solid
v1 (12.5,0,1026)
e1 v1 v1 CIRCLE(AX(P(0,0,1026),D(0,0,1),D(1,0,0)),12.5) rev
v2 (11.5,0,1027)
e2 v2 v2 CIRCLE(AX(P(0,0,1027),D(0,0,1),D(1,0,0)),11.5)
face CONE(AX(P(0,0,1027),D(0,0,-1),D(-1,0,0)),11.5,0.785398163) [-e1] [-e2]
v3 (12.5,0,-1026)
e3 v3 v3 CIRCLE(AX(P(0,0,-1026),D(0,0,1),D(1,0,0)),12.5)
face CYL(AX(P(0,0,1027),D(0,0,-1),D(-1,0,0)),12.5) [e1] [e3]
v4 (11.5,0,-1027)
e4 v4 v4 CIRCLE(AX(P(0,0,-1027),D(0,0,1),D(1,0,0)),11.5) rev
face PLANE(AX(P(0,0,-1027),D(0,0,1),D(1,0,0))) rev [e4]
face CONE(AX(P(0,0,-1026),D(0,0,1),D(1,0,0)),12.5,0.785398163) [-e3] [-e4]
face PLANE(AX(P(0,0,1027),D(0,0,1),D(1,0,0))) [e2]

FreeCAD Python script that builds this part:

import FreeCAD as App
import Part
import Sketcher
from FreeCAD import Vector
Q = App.Units.Quantity


def edges_at(feature, points):
    """Names of the edges that pass closest to the given points."""
    edges = feature.Shape.Edges
    near = lambda p: min(range(len(edges)), key=lambda i: edges[i].distToShape(Part.Vertex(*p))[0])
    return sorted({f"Edge{near(p) + 1}" for p in points})

doc = App.newDocument("Part")
body = doc.addObject("PartDesign::Body", "Body")

# Sketch on XY plane
sketch1 = doc.addObject("Sketcher::SketchObject", "Sketch")
body.addObject(sketch1)
sketch1.AttachmentSupport = (doc.XY_Plane, [""])
sketch1.MapMode = "FlatFace"
sketch1.addGeometry(Part.Circle(Vector(0, 0, 0), Vector(0, 0, 1), 12), False)
sketch1.addConstraint([
    Sketcher.Constraint("Coincident", 0, 3, -1, 1),
    Sketcher.Constraint("Diameter", 0, Q("25 mm")),
])
pad1 = doc.addObject("PartDesign::Pad", "Pad")
body.addObject(pad1)
pad1.Profile = sketch1
pad1.Length = 2054
pad1.Midplane = True
doc.recompute()

chamfer = doc.addObject("PartDesign::Chamfer", "Chamfer")
body.addObject(chamfer)
chamfer.Base = (pad1, edges_at(pad1, [(-12.5, 0, -1027), (-12.5, 0, 1027)]))
chamfer.Size = 1

doc.recompute()
